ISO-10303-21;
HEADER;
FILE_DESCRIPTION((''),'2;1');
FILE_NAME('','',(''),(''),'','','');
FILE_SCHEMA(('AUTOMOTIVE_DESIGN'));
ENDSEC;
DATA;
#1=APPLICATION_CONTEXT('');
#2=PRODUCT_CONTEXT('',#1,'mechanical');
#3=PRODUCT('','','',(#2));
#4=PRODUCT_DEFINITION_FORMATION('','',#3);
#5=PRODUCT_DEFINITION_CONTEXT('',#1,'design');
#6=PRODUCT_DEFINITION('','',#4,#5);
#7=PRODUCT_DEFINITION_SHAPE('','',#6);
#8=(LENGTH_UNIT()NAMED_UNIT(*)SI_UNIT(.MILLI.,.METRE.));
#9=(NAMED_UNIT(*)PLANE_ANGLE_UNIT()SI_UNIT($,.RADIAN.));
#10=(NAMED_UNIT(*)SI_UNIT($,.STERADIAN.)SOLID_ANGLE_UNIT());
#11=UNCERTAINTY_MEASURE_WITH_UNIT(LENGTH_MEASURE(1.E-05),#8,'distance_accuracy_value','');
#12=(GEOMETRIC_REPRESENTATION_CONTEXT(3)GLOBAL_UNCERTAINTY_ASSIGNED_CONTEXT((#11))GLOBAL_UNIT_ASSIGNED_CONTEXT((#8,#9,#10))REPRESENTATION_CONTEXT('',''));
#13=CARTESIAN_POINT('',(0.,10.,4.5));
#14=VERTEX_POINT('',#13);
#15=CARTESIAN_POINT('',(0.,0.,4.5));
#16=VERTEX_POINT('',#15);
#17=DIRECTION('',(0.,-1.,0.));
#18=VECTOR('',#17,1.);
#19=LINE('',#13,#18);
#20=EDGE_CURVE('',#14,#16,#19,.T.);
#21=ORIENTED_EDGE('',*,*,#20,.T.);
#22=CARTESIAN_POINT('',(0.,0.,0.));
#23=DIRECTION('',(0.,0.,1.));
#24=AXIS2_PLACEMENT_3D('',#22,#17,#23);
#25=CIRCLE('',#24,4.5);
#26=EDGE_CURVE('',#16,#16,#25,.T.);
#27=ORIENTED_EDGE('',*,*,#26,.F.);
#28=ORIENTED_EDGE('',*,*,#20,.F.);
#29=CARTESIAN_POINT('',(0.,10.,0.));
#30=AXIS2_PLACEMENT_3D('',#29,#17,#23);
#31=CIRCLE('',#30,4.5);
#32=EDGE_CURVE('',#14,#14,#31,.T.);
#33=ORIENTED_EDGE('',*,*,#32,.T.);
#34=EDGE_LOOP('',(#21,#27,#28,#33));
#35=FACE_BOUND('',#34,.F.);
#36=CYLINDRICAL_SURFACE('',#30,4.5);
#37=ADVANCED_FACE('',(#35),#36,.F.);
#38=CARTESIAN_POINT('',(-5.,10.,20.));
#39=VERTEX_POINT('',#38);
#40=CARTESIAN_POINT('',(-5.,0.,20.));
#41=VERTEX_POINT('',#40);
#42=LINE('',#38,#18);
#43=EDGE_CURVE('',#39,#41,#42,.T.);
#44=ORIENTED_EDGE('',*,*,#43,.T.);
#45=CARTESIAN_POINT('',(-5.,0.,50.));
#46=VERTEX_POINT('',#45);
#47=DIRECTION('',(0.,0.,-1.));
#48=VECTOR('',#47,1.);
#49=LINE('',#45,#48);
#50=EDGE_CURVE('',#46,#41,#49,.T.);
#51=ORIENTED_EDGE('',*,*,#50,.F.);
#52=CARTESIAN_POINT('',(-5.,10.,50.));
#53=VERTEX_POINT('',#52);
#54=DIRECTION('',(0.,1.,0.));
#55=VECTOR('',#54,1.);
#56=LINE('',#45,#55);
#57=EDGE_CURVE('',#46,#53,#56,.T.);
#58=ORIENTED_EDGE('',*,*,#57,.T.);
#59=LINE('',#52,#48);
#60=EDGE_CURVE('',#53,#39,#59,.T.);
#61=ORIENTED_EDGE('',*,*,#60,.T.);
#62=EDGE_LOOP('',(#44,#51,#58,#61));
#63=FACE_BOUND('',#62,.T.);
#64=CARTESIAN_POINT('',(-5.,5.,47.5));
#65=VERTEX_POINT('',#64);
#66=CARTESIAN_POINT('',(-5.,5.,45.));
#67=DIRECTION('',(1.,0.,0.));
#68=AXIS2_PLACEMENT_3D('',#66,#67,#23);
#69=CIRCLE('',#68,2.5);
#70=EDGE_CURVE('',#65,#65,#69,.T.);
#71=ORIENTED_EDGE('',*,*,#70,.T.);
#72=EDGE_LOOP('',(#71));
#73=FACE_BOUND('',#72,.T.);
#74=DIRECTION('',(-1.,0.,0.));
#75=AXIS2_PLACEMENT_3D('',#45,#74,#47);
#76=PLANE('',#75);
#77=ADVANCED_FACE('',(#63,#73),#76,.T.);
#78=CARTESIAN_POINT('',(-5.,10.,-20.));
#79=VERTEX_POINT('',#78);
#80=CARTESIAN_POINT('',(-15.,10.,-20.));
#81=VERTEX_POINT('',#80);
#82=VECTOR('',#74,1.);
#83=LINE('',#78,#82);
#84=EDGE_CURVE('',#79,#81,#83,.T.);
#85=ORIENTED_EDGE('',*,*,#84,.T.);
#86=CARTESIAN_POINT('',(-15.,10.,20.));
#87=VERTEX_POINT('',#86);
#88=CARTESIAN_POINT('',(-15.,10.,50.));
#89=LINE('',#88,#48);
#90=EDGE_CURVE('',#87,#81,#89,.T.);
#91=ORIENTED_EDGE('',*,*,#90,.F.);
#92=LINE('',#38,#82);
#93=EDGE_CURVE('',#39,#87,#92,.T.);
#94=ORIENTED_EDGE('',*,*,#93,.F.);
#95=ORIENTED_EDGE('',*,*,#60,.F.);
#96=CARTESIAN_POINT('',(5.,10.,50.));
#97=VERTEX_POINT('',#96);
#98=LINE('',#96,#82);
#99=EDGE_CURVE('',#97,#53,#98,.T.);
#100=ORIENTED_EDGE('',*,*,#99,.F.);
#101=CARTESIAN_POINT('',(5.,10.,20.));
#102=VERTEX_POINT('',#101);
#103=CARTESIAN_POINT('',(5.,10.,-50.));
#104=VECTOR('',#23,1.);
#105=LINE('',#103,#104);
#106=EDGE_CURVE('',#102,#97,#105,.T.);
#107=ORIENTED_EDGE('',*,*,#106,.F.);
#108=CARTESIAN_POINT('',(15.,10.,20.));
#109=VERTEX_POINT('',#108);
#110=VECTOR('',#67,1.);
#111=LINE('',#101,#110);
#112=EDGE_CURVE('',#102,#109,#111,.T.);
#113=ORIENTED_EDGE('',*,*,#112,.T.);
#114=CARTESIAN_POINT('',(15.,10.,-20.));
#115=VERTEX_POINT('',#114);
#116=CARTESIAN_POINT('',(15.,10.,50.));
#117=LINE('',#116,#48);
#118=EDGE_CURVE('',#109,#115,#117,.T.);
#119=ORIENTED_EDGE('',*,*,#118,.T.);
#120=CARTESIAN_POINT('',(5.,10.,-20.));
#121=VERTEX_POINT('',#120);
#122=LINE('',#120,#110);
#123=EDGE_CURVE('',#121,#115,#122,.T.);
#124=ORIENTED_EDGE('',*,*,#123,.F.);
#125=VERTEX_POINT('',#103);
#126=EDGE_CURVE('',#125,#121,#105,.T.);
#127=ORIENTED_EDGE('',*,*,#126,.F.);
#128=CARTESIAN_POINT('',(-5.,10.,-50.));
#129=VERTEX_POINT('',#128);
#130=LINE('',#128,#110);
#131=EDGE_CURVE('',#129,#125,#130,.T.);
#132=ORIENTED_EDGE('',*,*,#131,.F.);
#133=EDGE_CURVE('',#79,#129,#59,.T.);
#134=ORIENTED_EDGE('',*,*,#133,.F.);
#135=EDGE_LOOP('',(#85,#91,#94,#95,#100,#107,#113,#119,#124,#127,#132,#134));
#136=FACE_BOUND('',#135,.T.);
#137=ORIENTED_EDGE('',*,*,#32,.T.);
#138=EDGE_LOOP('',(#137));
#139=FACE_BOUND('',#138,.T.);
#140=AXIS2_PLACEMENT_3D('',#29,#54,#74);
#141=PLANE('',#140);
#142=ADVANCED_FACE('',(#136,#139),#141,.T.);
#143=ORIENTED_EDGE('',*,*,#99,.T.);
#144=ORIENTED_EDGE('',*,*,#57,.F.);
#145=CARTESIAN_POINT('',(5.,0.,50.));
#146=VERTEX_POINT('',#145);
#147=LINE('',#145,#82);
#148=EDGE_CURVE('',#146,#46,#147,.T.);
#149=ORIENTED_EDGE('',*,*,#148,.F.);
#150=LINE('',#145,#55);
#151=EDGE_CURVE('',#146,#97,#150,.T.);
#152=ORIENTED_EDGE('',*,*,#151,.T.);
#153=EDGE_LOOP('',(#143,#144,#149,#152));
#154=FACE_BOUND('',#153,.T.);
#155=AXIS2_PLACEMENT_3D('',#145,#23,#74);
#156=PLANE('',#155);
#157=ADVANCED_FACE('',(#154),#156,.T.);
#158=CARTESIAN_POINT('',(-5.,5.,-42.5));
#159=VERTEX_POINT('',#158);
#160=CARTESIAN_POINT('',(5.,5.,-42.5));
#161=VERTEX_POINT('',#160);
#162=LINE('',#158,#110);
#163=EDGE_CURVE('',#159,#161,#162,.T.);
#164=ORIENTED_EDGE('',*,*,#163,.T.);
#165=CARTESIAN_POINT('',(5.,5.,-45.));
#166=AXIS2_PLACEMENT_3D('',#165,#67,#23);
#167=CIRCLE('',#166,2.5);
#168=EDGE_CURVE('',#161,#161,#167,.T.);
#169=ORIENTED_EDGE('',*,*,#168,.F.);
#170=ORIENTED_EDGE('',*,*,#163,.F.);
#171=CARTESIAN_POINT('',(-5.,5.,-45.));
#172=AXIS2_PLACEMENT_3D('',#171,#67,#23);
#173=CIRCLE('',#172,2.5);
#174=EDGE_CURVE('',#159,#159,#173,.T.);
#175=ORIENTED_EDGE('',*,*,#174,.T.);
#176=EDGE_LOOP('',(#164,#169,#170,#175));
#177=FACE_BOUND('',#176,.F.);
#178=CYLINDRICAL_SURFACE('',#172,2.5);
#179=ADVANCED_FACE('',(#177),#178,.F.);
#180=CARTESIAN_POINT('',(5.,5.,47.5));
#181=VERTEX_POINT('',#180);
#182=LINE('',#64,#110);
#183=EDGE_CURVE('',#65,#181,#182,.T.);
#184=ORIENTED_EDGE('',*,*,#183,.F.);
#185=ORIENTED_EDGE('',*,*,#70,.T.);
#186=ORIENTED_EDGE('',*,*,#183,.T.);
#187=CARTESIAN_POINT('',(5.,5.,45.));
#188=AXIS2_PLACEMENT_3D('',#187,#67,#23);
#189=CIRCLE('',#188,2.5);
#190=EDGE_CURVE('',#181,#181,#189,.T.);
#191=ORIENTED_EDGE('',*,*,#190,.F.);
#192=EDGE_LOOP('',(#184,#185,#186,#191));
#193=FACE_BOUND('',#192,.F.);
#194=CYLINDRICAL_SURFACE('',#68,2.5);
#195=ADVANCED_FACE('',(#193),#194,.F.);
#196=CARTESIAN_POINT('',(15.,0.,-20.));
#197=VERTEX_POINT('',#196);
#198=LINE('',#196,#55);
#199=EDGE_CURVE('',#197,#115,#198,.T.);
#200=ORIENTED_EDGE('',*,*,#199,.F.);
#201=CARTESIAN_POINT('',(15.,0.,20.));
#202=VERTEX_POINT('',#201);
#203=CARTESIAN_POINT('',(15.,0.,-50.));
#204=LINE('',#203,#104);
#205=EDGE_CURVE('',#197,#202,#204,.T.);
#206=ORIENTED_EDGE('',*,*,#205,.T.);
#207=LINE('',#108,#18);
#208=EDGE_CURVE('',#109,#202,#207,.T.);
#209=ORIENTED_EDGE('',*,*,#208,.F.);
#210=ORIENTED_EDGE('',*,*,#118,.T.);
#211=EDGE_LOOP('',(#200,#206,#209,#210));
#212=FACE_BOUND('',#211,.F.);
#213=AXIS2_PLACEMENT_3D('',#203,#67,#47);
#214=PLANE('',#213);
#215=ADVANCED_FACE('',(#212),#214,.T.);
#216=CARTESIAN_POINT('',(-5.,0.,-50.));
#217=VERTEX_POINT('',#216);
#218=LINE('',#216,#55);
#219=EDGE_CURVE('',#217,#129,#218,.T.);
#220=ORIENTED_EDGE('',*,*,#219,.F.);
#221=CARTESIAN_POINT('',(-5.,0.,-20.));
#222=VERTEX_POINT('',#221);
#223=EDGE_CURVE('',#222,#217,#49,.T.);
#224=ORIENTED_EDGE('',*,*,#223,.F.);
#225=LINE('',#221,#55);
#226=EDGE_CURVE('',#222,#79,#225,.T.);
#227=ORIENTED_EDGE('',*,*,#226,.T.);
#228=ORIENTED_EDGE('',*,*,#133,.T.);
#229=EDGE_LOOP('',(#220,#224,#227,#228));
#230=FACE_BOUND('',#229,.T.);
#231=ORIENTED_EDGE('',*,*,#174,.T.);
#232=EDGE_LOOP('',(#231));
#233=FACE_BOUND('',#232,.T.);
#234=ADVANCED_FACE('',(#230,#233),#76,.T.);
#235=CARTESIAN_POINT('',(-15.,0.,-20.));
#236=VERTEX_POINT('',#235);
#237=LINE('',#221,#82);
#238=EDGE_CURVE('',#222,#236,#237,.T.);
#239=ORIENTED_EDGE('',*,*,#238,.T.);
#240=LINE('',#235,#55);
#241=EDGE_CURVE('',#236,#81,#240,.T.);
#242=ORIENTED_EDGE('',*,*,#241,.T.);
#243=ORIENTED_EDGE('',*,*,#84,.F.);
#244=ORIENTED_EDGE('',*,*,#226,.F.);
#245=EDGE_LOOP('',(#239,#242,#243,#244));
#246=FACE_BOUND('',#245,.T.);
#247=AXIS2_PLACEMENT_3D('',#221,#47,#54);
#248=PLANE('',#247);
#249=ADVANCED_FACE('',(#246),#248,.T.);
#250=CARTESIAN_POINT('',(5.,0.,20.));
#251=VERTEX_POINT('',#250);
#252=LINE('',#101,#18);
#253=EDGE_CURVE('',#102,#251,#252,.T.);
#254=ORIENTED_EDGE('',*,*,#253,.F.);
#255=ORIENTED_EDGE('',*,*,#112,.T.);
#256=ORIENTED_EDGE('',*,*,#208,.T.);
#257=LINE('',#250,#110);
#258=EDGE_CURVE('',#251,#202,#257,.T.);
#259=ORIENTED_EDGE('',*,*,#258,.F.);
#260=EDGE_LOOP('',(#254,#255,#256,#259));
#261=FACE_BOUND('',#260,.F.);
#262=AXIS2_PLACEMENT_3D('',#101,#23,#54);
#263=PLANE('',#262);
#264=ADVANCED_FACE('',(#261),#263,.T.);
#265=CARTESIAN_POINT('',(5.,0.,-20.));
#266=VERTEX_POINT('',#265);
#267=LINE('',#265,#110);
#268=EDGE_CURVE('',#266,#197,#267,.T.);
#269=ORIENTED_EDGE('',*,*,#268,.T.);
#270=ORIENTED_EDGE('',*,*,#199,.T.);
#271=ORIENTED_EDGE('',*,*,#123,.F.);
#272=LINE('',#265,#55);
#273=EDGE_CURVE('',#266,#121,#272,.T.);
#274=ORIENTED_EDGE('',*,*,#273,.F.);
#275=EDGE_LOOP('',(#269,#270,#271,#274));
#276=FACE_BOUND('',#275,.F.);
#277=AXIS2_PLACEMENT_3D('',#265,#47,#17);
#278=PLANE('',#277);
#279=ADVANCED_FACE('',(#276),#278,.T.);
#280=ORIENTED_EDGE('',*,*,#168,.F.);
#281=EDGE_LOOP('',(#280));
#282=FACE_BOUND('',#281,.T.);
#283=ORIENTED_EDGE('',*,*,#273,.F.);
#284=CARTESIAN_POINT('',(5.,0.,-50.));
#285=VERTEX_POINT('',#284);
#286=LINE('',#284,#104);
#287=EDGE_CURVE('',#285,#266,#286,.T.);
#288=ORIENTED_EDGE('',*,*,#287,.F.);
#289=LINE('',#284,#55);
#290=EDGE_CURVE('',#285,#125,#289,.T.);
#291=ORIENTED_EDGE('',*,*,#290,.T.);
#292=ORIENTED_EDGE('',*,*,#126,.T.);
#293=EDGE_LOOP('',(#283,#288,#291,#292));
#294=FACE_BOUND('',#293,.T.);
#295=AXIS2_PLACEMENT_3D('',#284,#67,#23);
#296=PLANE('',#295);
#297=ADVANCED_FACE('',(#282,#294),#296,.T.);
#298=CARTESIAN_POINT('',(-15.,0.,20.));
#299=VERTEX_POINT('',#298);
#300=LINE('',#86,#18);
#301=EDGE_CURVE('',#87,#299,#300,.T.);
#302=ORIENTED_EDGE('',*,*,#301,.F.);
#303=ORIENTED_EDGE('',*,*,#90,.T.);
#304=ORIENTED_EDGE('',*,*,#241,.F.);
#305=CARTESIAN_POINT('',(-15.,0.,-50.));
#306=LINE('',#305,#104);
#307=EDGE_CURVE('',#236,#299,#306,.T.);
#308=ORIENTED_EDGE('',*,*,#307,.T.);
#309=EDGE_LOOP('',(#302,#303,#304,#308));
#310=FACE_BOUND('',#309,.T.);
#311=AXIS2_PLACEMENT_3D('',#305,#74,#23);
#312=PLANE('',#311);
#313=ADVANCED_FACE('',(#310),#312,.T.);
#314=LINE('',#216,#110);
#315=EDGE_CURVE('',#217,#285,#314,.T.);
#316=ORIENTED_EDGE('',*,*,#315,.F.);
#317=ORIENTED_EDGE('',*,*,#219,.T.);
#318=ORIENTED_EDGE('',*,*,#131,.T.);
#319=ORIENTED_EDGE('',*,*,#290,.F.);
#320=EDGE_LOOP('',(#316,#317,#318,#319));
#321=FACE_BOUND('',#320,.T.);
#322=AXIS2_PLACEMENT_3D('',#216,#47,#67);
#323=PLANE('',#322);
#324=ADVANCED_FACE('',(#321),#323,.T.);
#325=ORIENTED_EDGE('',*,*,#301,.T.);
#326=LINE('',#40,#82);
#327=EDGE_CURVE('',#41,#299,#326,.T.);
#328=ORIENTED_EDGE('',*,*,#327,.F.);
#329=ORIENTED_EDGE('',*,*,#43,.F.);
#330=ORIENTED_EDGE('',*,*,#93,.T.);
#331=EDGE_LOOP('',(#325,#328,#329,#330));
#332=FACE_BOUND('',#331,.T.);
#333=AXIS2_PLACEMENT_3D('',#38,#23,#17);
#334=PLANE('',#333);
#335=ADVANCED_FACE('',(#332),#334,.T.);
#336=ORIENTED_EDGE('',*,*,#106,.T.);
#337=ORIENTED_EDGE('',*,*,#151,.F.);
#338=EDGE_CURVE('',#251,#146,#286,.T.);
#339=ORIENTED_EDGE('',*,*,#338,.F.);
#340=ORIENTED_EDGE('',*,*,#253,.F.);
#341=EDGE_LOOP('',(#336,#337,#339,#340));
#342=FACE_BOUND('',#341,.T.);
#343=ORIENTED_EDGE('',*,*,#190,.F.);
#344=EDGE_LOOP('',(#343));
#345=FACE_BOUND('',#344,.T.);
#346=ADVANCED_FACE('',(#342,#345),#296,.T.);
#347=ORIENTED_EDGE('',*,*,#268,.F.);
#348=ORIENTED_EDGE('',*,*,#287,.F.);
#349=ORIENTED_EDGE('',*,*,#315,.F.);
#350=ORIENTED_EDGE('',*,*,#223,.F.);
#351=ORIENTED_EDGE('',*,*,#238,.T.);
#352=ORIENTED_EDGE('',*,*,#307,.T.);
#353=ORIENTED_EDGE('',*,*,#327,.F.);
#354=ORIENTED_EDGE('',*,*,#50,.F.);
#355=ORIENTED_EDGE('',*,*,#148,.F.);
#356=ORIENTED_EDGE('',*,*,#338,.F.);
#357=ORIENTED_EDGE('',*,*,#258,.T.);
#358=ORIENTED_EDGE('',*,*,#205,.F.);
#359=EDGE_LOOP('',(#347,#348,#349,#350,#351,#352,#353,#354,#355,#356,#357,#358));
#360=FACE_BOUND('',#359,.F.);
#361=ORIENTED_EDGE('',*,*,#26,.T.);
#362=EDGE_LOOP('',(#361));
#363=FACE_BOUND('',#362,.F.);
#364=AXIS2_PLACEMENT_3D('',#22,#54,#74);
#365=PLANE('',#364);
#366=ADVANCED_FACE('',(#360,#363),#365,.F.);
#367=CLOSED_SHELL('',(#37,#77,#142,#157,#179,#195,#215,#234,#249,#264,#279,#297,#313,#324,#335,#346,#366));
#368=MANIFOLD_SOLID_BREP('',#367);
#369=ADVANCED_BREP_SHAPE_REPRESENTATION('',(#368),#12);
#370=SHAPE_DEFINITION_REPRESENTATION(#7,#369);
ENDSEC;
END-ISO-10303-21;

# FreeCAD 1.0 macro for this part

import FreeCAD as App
import Part
import Sketcher

V = App.Vector
Q = App.Units.Quantity

doc = App.newDocument("Part")
body = doc.addObject("PartDesign::Body", "Body")

# Sketch on XZ plane
sketch1 = body.newObject("Sketcher::SketchObject", "Sketch")
sketch1.AttachmentSupport = (doc.getObject("XZ_Plane"), [""])
sketch1.MapMode = "FlatFace"
sketch1.addGeometry(Part.LineSegment(V(-5, 50, 0), V(5, 50, 0)), False)
sketch1.addGeometry(Part.LineSegment(V(5, 50, 0), V(5, -50, 0)), False)
sketch1.addGeometry(Part.LineSegment(V(5, -50, 0), V(-5, -50, 0)), False)
sketch1.addGeometry(Part.LineSegment(V(-5, -50, 0), V(-5, 50, 0)), False)
sketch1.addConstraint(Sketcher.Constraint("Coincident", 0, 2, 1, 1))
sketch1.addConstraint(Sketcher.Constraint("Coincident", 1, 2, 2, 1))
sketch1.addConstraint(Sketcher.Constraint("Coincident", 2, 2, 3, 1))
sketch1.addConstraint(Sketcher.Constraint("Coincident", 3, 2, 0, 1))
sketch1.addConstraint(Sketcher.Constraint("Horizontal", 0))
sketch1.addConstraint(Sketcher.Constraint("Vertical", 1))
sketch1.addConstraint(Sketcher.Constraint("Horizontal", 2))
sketch1.addConstraint(Sketcher.Constraint("Vertical", 3))
sketch1.addConstraint(Sketcher.Constraint("Symmetric", 0, 2, 2, 2, -1, 1))
sketch1.addConstraint(Sketcher.Constraint("DistanceX", 0, 1, 0, 2, Q("10 mm")))
sketch1.addConstraint(Sketcher.Constraint("DistanceY", 1, 2, 1, 1, Q("100 mm")))
pad1 = body.newObject("PartDesign::Pad", "Pad")
pad1.Profile = sketch1
pad1.Length = 10
pad1.Reversed = True

# Sketch on YZ plane
sketch2 = body.newObject("Sketcher::SketchObject", "Sketch001")
sketch2.AttachmentSupport = (doc.getObject("YZ_Plane"), [""])
sketch2.MapMode = "FlatFace"
sketch2.AttachmentOffset = App.Placement(V(0, 0, -5), App.Rotation())
sketch2.addGeometry(Part.Circle(V(5, -45, 0), V(0, 0, 1), 2.5), False)
sketch2.addGeometry(Part.Circle(V(5, 45, 0), V(0, 0, 1), 2.5), False)
sketch2.addConstraint(Sketcher.Constraint("Equal", 0, 1))
sketch2.addConstraint(Sketcher.Constraint("Symmetric", 0, 3, 1, 3, -1))
sketch2.addConstraint(Sketcher.Constraint("Diameter", 0, Q("5 mm")))
sketch2.addConstraint(Sketcher.Constraint("DistanceX", -1, 1, 0, 3, Q("5 mm")))
sketch2.addConstraint(Sketcher.Constraint("DistanceY", 0, 3, -1, 1, Q("45 mm")))
doc.recompute()
hole = body.newObject("PartDesign::Hole", "Hole")
hole.Profile = sketch2
hole.ThreadType = "None"
hole.Diameter = 5
hole.DepthType = "ThroughAll"
hole.Reversed = True

# Sketch on YZ plane
sketch3 = body.newObject("Sketcher::SketchObject", "Sketch002")
sketch3.AttachmentSupport = (doc.getObject("YZ_Plane"), [""])
sketch3.MapMode = "FlatFace"
sketch3.AttachmentOffset = App.Placement(V(0, 0, -5), App.Rotation())
sketch3.addGeometry(Part.LineSegment(V(0, 20, 0), V(10, 20, 0)), False)
sketch3.addGeometry(Part.LineSegment(V(10, 20, 0), V(10, -20, 0)), False)
sketch3.addGeometry(Part.LineSegment(V(10, -20, 0), V(0, -20, 0)), False)
sketch3.addGeometry(Part.LineSegment(V(0, -20, 0), V(0, 20, 0)), False)
sketch3.addConstraint(Sketcher.Constraint("Coincident", 0, 2, 1, 1))
sketch3.addConstraint(Sketcher.Constraint("Coincident", 1, 2, 2, 1))
sketch3.addConstraint(Sketcher.Constraint("Coincident", 2, 2, 3, 1))
sketch3.addConstraint(Sketcher.Constraint("Coincident", 3, 2, 0, 1))
sketch3.addConstraint(Sketcher.Constraint("Horizontal", 0))
sketch3.addConstraint(Sketcher.Constraint("Vertical", 1))
sketch3.addConstraint(Sketcher.Constraint("Horizontal", 2))
sketch3.addConstraint(Sketcher.Constraint("Vertical", 3))
sketch3.addConstraint(Sketcher.Constraint("Symmetric", 2, 2, 3, 2, -1, 1))
sketch3.addConstraint(Sketcher.Constraint("DistanceX", 0, 1, 0, 2, Q("10 mm")))
sketch3.addConstraint(Sketcher.Constraint("DistanceY", 1, 2, 1, 1, Q("40 mm")))
pad2 = body.newObject("PartDesign::Pad", "Pad001")
pad2.Profile = sketch3
pad2.Length = 10
pad2.Reversed = True
doc.recompute()

mirrored = body.newObject("PartDesign::Mirrored", "Mirrored")
mirrored.Originals = [pad2]
mirrored.MirrorPlane = (doc.getObject("YZ_Plane"), [""])
body.Tip = mirrored

# Sketch on XZ plane
sketch4 = body.newObject("Sketcher::SketchObject", "Sketch003")
sketch4.AttachmentSupport = (doc.getObject("XZ_Plane"), [""])
sketch4.MapMode = "FlatFace"
sketch4.AttachmentOffset = App.Placement(V(0, 0, -10), App.Rotation())
sketch4.addGeometry(Part.Circle(V(0, 0, 0), V(0, 0, 1), 4.5), False)
sketch4.addConstraint(Sketcher.Constraint("Coincident", 0, 3, -1, 1))
sketch4.addConstraint(Sketcher.Constraint("Diameter", 0, Q("9 mm")))
doc.recompute()
hole2 = body.newObject("PartDesign::Hole", "Hole001")
hole2.Profile = sketch4
hole2.ThreadType = "None"
hole2.Diameter = 9
hole2.DepthType = "ThroughAll"
hole2.Reversed = True

doc.recompute()
